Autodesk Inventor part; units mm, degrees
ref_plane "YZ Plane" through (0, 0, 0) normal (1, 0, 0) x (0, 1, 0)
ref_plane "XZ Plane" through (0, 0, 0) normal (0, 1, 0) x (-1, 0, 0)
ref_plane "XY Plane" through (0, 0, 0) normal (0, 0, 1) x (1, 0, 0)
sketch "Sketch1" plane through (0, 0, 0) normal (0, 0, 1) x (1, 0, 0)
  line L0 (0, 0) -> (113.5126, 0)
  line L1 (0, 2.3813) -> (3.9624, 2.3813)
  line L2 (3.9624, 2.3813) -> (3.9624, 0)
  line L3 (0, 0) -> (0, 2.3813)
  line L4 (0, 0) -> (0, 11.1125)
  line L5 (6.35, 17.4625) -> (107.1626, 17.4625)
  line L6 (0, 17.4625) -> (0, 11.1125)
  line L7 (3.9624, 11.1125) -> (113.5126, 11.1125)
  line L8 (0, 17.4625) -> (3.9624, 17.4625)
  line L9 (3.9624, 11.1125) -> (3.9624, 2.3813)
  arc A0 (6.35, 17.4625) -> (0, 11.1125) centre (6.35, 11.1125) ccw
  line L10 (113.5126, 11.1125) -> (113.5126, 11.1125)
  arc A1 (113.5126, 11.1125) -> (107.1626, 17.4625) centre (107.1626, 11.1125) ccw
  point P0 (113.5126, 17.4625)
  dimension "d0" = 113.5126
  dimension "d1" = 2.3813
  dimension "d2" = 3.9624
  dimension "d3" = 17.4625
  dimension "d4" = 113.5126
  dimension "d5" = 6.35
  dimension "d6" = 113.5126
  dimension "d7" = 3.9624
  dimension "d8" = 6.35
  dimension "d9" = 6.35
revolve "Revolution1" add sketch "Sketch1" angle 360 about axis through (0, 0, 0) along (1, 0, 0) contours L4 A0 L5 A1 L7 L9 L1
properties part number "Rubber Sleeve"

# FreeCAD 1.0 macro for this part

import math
import FreeCAD as App
import Part
import Sketcher
from FreeCAD import Vector
Q = App.Units.Quantity

doc = App.newDocument("Part")
body = doc.addObject("PartDesign::Body", "Body")

# Sketch on XY plane
sketch1 = doc.addObject("Sketcher::SketchObject", "Sketch")
body.addObject(sketch1)
sketch1.AttachmentSupport = (doc.XY_Plane, [""])
sketch1.MapMode = "FlatFace"
sketch1.addGeometry([
    Part.LineSegment(Vector(0, 11.1, 0), Vector(0, 2.4, 0)),  # 0
    Part.LineSegment(Vector(0, 2.4, 0), Vector(4, 2.4, 0)),  # 1
    Part.LineSegment(Vector(4, 2.4, 0), Vector(4, 11.1, 0)),  # 2
    Part.LineSegment(Vector(4, 11.1, 0), Vector(113.5, 11.1, 0)),  # 3
    Part.ArcOfCircle(Part.Circle(Vector(107.2, 11.1, 0), Vector(0, 0, 1), 6.4), math.radians(0), math.radians(90)),  # 4
    Part.LineSegment(Vector(107.2, 17.5, 0), Vector(6.3, 17.5, 0)),  # 5
    Part.ArcOfCircle(Part.Circle(Vector(6.3, 11.1, 0), Vector(0, 0, 1), 6.3), math.radians(90), math.radians(180)),  # 6
], False)
sketch1.addConstraint([
    Sketcher.Constraint("Coincident", 0, 2, 1, 1),
    Sketcher.Constraint("Coincident", 1, 2, 2, 1),
    Sketcher.Constraint("Coincident", 2, 2, 3, 1),
    Sketcher.Constraint("Coincident", 3, 2, 4, 1),
    Sketcher.Constraint("Tangent", 4, 2, 5, 1),
    Sketcher.Constraint("Tangent", 5, 2, 6, 1),
    Sketcher.Constraint("Tangent", 6, 2, 0, 1),
    Sketcher.Constraint("Vertical", 0),
    Sketcher.Constraint("Horizontal", 1),
    Sketcher.Constraint("Vertical", 2),
    Sketcher.Constraint("Horizontal", 3),
    Sketcher.Constraint("Horizontal", 5),
    Sketcher.Constraint("Equal", 4, 6),
    Sketcher.Constraint("PointOnObject", 0, 2, -2),
    Sketcher.Constraint("Horizontal", 6, 3, 2, 2),
    Sketcher.Constraint("Radius", 4, Q("0.25 in")),
    Sketcher.Constraint("DistanceX", 1, 1, 1, 2, Q("0.156 in")),
    Sketcher.Constraint("DistanceY", -1, 1, 0, 2, Q("0.093752 in")),
    Sketcher.Constraint("DistanceX", -1, 1, 3, 2, Q("4.469 in")),
    Sketcher.Constraint("DistanceY", -1, 1, 4, 2, Q("0.6875 in")),
])
revolution = doc.addObject("PartDesign::Revolution", "Revolution")
body.addObject(revolution)
revolution.Profile = sketch1
revolution.ReferenceAxis = (sketch1, ["H_Axis"])
revolution.Angle = 360

doc.recompute()
